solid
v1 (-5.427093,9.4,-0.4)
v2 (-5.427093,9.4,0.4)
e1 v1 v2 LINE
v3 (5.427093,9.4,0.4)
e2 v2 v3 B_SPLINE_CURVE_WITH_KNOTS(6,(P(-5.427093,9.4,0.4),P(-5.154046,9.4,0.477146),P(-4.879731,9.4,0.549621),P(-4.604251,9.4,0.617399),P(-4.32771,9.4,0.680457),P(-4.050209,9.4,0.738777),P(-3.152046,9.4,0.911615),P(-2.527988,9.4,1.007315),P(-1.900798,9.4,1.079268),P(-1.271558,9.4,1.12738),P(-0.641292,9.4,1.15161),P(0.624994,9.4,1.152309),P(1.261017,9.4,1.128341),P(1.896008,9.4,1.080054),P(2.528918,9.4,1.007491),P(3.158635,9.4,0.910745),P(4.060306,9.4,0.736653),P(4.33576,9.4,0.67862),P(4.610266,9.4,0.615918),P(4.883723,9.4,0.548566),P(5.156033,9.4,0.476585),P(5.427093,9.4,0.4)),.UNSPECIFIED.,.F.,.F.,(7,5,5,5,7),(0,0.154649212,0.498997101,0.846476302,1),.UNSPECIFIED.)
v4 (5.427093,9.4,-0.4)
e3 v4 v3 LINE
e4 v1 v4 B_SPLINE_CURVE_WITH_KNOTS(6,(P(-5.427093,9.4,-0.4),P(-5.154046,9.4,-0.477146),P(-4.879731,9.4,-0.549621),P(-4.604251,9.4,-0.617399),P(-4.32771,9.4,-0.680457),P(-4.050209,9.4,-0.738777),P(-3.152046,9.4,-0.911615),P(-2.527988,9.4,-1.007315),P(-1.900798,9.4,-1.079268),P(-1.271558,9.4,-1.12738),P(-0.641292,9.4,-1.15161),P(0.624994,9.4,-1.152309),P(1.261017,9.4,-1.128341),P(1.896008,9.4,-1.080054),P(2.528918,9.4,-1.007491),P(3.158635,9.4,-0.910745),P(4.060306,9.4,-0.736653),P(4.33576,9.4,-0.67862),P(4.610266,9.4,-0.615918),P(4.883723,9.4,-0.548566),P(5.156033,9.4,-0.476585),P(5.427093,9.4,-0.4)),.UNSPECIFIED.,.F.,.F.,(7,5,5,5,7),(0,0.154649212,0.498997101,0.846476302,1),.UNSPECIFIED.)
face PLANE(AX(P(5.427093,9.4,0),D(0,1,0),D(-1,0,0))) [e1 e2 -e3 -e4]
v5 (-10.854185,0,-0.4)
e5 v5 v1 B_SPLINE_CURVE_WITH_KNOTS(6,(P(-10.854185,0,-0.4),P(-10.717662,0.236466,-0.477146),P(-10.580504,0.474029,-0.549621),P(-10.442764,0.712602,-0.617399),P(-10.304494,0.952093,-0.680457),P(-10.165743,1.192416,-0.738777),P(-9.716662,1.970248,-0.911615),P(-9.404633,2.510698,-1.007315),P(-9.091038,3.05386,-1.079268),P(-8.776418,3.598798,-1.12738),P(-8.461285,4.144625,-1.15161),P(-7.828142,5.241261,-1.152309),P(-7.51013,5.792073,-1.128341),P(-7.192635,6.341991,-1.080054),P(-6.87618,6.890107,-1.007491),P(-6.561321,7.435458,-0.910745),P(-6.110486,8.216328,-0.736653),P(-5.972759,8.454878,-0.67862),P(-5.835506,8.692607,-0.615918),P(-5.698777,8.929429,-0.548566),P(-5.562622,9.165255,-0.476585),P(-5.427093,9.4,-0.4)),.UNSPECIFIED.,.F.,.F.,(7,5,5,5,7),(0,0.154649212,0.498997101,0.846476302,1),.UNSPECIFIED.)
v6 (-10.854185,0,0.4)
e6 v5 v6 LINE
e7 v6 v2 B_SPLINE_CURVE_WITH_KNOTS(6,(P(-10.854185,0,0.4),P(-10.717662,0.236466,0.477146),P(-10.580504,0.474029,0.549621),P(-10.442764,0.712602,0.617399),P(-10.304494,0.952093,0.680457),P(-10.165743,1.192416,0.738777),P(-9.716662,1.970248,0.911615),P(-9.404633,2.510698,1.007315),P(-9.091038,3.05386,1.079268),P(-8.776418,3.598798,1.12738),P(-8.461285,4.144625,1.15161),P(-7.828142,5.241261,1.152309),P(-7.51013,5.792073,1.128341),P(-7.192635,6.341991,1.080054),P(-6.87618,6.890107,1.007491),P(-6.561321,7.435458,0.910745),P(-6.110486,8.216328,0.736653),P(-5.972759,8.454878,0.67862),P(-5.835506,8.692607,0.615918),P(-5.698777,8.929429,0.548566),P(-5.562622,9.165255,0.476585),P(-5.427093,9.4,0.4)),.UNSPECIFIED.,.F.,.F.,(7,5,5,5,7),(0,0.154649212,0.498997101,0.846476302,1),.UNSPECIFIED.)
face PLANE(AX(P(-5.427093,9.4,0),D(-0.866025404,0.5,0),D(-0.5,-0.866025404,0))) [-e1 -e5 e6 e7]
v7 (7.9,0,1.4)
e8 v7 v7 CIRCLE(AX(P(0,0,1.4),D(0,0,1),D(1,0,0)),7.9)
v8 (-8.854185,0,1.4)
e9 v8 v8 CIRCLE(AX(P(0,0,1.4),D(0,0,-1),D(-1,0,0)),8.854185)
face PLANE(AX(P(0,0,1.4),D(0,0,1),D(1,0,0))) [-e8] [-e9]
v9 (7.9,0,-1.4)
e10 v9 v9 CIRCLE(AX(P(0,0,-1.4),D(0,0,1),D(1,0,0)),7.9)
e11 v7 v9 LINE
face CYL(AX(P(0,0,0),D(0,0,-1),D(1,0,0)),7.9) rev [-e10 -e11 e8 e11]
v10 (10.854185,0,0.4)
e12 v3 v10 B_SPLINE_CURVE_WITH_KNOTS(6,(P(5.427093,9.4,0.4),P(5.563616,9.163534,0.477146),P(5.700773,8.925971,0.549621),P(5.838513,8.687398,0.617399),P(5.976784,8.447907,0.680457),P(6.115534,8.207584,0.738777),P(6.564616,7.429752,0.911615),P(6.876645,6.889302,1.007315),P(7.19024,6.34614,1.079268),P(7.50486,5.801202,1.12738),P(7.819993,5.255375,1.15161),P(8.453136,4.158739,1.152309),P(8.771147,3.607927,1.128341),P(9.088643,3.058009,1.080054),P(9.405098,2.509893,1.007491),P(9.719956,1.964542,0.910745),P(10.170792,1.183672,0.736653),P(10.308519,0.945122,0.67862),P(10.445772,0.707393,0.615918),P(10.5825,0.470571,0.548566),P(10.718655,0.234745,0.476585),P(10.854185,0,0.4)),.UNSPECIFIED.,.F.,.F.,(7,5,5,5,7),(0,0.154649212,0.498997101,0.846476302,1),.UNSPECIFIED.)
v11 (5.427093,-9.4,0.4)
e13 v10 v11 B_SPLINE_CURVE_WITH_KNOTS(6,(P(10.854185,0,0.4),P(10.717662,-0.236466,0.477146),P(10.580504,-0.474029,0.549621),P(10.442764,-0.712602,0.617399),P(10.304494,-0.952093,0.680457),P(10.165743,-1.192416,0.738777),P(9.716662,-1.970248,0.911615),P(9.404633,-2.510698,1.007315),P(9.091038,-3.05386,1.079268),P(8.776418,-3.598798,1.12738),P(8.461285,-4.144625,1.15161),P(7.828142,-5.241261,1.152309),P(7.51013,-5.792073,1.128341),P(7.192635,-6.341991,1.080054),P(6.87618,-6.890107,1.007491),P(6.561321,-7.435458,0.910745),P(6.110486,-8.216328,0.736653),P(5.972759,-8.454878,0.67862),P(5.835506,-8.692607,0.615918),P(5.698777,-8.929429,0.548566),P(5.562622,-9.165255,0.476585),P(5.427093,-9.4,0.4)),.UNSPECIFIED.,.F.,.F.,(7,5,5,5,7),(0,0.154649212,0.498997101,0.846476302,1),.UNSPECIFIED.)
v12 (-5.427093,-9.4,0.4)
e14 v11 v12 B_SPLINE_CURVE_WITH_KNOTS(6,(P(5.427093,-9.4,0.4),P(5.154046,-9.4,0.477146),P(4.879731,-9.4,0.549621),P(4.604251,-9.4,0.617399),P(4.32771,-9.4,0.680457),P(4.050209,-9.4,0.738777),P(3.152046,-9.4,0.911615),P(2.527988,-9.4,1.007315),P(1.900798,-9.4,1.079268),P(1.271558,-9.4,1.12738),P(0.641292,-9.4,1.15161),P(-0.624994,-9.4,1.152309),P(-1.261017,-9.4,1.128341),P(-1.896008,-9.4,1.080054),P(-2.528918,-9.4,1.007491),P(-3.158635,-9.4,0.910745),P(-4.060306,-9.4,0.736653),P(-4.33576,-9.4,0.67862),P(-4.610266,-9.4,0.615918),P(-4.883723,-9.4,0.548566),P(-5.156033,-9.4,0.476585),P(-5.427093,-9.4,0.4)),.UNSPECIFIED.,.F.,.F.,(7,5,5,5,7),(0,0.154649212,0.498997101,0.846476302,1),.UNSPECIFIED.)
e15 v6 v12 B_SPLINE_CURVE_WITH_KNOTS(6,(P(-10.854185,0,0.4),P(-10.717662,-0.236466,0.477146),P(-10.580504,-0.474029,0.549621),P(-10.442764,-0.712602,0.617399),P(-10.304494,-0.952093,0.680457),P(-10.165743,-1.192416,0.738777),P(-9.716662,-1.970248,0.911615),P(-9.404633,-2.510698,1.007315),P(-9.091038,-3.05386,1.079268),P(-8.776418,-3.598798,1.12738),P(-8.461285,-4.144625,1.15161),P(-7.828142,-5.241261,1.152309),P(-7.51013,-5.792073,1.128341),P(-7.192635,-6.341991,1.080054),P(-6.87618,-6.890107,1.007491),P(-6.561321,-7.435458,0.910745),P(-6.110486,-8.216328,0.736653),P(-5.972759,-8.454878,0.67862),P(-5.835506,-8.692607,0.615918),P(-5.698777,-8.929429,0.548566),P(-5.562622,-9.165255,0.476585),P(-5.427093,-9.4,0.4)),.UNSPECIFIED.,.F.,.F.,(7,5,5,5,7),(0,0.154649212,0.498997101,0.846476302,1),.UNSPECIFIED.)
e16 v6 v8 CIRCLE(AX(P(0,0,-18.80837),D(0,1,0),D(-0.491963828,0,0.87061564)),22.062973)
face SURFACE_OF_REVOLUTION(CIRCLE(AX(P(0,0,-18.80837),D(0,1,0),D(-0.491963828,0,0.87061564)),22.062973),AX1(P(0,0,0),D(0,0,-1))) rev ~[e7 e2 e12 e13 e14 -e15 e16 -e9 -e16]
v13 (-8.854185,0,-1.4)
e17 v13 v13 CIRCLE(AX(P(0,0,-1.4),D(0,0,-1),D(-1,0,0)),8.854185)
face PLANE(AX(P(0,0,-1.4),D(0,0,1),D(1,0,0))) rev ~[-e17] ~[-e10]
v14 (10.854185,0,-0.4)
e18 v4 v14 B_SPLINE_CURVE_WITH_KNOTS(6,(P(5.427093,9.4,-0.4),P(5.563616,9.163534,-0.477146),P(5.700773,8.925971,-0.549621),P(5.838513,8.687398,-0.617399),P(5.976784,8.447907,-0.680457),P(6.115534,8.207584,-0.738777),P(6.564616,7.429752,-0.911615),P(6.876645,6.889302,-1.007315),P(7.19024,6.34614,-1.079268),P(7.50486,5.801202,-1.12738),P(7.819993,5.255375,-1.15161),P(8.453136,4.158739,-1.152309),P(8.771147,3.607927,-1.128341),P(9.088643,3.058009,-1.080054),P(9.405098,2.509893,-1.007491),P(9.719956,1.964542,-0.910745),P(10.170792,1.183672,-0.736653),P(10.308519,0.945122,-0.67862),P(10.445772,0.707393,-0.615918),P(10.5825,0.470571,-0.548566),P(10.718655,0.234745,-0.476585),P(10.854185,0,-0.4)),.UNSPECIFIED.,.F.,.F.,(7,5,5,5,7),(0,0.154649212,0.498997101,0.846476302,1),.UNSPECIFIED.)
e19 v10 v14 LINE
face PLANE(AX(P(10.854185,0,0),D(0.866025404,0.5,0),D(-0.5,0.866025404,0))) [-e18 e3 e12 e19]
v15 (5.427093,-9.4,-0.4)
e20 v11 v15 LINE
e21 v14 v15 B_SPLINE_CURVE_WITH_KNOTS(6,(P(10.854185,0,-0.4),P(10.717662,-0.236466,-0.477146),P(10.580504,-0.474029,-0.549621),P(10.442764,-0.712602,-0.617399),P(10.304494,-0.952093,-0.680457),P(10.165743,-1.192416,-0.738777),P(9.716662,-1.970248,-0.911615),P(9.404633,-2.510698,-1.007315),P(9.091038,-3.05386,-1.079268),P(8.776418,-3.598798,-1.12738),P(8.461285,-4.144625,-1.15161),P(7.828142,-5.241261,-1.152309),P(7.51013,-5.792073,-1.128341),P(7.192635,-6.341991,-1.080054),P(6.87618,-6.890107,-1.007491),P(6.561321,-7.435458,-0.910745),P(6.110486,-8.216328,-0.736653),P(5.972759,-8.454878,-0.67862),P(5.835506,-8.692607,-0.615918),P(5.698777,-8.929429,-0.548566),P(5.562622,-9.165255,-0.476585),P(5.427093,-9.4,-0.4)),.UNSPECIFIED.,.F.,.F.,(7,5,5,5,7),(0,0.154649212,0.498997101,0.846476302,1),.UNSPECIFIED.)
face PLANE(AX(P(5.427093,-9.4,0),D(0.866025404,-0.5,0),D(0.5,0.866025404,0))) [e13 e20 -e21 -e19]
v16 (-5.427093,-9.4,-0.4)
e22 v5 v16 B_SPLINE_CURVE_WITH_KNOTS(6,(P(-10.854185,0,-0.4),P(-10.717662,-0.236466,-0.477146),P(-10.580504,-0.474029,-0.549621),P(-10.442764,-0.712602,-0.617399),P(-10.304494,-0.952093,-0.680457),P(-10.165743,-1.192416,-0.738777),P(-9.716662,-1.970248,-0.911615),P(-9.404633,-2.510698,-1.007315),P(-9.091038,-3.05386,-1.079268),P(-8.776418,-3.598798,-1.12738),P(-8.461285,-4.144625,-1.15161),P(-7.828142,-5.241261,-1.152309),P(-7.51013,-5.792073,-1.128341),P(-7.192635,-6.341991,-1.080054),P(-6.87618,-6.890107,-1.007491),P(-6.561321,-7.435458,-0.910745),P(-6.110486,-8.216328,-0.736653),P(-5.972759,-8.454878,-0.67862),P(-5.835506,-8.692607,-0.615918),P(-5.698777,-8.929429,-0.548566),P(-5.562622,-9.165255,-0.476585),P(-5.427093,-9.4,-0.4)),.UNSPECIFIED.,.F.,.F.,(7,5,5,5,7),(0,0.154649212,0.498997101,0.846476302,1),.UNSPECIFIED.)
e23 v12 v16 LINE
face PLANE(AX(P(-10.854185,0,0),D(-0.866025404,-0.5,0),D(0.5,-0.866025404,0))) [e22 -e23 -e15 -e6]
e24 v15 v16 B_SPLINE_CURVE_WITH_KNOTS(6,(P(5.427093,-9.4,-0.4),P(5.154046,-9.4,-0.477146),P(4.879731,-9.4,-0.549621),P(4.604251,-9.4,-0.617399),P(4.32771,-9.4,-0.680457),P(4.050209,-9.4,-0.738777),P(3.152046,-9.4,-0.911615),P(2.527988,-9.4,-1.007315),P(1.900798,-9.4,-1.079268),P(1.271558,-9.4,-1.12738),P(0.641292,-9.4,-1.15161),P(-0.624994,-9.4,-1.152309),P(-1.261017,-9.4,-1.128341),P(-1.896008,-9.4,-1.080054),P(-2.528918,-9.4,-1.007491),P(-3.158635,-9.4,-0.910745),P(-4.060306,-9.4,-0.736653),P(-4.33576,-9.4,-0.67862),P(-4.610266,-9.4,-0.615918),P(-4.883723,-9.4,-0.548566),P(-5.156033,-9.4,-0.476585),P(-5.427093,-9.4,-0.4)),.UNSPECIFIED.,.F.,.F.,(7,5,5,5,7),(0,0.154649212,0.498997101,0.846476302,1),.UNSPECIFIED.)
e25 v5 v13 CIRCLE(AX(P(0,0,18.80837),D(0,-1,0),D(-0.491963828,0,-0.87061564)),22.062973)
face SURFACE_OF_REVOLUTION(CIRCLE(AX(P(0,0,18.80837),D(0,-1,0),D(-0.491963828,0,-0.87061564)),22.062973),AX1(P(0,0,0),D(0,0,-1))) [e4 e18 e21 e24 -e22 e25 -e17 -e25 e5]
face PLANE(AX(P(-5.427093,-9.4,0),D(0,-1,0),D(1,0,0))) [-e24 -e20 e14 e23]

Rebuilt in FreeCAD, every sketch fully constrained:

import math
import FreeCAD as App
import Part
import Sketcher
from FreeCAD import Vector
Q = App.Units.Quantity

doc = App.newDocument("Part")
body = doc.addObject("PartDesign::Body", "Body")

# Sketch on XY plane
sketch1 = body.newObject("Sketcher::SketchObject", "Sketch")
sketch1.AttachmentSupport = (doc.getObject("XY_Plane"), [""])
sketch1.MapMode = "FlatFace"
sketch1.addGeometry(Part.LineSegment(Vector(10.854185, 0, 0), Vector(5.427093, 9.4, 0)), False)
sketch1.addGeometry(Part.LineSegment(Vector(5.427093, 9.4, 0), Vector(-5.427093, 9.4, 0)), False)
sketch1.addGeometry(Part.LineSegment(Vector(-5.427093, 9.4, 0), Vector(-10.854185, 0, 0)), False)
sketch1.addGeometry(Part.LineSegment(Vector(-10.854185, 0, 0), Vector(-5.427093, -9.4, 0)), False)
sketch1.addGeometry(Part.LineSegment(Vector(-5.427093, -9.4, 0), Vector(5.427093, -9.4, 0)), False)
sketch1.addGeometry(Part.LineSegment(Vector(5.427093, -9.4, 0), Vector(10.854185, 0, 0)), False)
sketch1.addGeometry(Part.Circle(Vector(0, 0, 0), Vector(0, 0, 1), 7.9), False)
sketch1.addConstraint(Sketcher.Constraint("Coincident", 0, 2, 1, 1))
sketch1.addConstraint(Sketcher.Constraint("Coincident", 1, 2, 2, 1))
sketch1.addConstraint(Sketcher.Constraint("Coincident", 2, 2, 3, 1))
sketch1.addConstraint(Sketcher.Constraint("Coincident", 3, 2, 4, 1))
sketch1.addConstraint(Sketcher.Constraint("Coincident", 4, 2, 5, 1))
sketch1.addConstraint(Sketcher.Constraint("Coincident", 5, 2, 0, 1))
sketch1.addConstraint(Sketcher.Constraint("Horizontal", 1))
sketch1.addConstraint(Sketcher.Constraint("Horizontal", 4))
sketch1.addConstraint(Sketcher.Constraint("Coincident", 6, 3, -1, 1))
sketch1.addConstraint(Sketcher.Constraint("Symmetric", 0, 2, 3, 2, -1, 1))
sketch1.addConstraint(Sketcher.Constraint("Symmetric", 2, 2, 5, 2, -1, 1))
sketch1.addConstraint(Sketcher.Constraint("PointOnObject", 2, 2, -1))
sketch1.addConstraint(Sketcher.Constraint("Parallel", 2, 5))
sketch1.addConstraint(Sketcher.Constraint("Vertical", 1, 2, 3, 2))
sketch1.addConstraint(Sketcher.Constraint("Diameter", 6, Q("15.8 mm")))
sketch1.addConstraint(Sketcher.Constraint("Angle", 0, Q("120 deg")))
sketch1.addConstraint(Sketcher.Constraint("DistanceY", -1, 1, 0, 2, Q("9.4 mm")))
sketch1.addConstraint(Sketcher.Constraint("DistanceX", 1, 2, 1, 1, Q("10.854185 mm")))
pad1 = body.newObject("PartDesign::Pad", "Pad")
pad1.Profile = sketch1
pad1.Length = 2.8
pad1.Midplane = True

# Sketch on XZ plane
sketch2 = body.newObject("Sketcher::SketchObject", "Sketch001")
sketch2.AttachmentSupport = (doc.getObject("XZ_Plane"), [""])
sketch2.MapMode = "FlatFace"
sketch2.addGeometry(Part.LineSegment(Vector(-10.854185, -1.4, 0), Vector(-10.854185, -0.4, 0)), False)
sketch2.addGeometry(Part.ArcOfCircle(Part.Circle(Vector(0, 18.80837, 0), Vector(0, 0, 1), 22.062973), math.radians(-119.46974), math.radians(-113.660362)), False)
sketch2.addGeometry(Part.LineSegment(Vector(-8.854185, -1.4, 0), Vector(-10.854185, -1.4, 0)), False)
sketch2.addConstraint(Sketcher.Constraint("Coincident", 0, 2, 1, 1))
sketch2.addConstraint(Sketcher.Constraint("Coincident", 1, 2, 2, 1))
sketch2.addConstraint(Sketcher.Constraint("Coincident", 2, 2, 0, 1))
sketch2.addConstraint(Sketcher.Constraint("Vertical", 0))
sketch2.addConstraint(Sketcher.Constraint("Horizontal", 2))
sketch2.addConstraint(Sketcher.Constraint("PointOnObject", 1, 3, -2))
sketch2.addConstraint(Sketcher.Constraint("DistanceX", 2, 2, 2, 1, Q("2 mm")))
sketch2.addConstraint(Sketcher.Constraint("DistanceY", 0, 1, 0, 2, Q("1 mm")))
sketch2.addConstraint(Sketcher.Constraint("DistanceY", 0, 2, -1, 1, Q("0.4 mm")))
sketch2.addConstraint(Sketcher.Constraint("Radius", 1, Q("22.062973 mm")))
groove = body.newObject("PartDesign::Groove", "Groove")
groove.Profile = sketch2
groove.ReferenceAxis = (sketch2, ["V_Axis"])
groove.Angle = 360
doc.recompute()

mirrored = body.newObject("PartDesign::Mirrored", "Mirrored")
mirrored.Originals = [groove]
mirrored.MirrorPlane = (doc.getObject("XY_Plane"), [""])
body.Tip = mirrored

doc.recompute()
